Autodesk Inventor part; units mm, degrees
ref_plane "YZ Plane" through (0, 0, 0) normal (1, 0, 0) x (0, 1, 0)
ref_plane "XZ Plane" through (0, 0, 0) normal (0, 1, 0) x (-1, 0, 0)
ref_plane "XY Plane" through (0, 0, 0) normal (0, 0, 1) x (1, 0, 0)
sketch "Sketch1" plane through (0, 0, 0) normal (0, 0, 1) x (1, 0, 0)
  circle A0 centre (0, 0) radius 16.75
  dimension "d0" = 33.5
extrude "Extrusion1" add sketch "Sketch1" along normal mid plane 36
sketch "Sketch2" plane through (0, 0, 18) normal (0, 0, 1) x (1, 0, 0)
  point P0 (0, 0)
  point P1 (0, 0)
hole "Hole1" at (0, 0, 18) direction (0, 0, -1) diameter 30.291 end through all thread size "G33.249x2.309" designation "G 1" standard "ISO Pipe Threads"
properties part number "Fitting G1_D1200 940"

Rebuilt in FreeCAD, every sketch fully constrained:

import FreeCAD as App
import Part
import Sketcher
from FreeCAD import Vector

doc = App.newDocument("Part")
body = doc.addObject("PartDesign::Body", "Body")

# Sketch on XY plane
sketch1 = body.newObject("Sketcher::SketchObject", "Sketch")
sketch1.AttachmentSupport = (doc.getObject("XY_Plane"), [""])
sketch1.MapMode = "FlatFace"
sketch1.addGeometry(Part.Circle(Vector(0, 0, 0), Vector(0, 0, 1), 17), False)
sketch1.addConstraint([
    Sketcher.Constraint("Coincident", 0, 3, -1, 1),
    Sketcher.Constraint("Diameter", 0, 33.5),
])
pad1 = body.newObject("PartDesign::Pad", "Pad")
pad1.Profile = sketch1
pad1.Length = 36
pad1.Midplane = True

# Sketch on XY plane
sketch2 = body.newObject("Sketcher::SketchObject", "Sketch001")
sketch2.AttachmentSupport = (doc.getObject("XY_Plane"), [""])
sketch2.MapMode = "FlatFace"
sketch2.AttachmentOffset = App.Placement(Vector(0, 0, 18), App.Rotation())
sketch2.addGeometry(Part.Circle(Vector(0, 0, 0), Vector(0, 0, 1), 15), False)
sketch2.addConstraint([
    Sketcher.Constraint("Coincident", 0, 3, -1, 1),
    Sketcher.Constraint("Diameter", 0, 30.291),
])
doc.recompute()
hole = body.newObject("PartDesign::Hole", "Hole")
hole.Profile = sketch2
hole.ThreadType = "None"
hole.Diameter = 30.291
hole.DepthType = "ThroughAll"

doc.recompute()
